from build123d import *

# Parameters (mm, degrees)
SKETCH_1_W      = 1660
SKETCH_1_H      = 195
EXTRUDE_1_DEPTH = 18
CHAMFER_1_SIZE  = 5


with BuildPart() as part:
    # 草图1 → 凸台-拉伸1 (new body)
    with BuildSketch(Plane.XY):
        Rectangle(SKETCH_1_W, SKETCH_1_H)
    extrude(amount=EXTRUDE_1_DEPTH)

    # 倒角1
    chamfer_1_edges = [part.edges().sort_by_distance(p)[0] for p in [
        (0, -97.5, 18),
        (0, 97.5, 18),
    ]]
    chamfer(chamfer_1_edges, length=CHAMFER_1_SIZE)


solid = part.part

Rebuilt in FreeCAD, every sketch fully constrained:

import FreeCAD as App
import Part
import Sketcher
Q = App.Units.Quantity


def edges_at(feature, points):
    """Names of the edges that pass closest to the given points."""
    edges = feature.Shape.Edges
    near = lambda p: min(range(len(edges)), key=lambda i: edges[i].distToShape(Part.Vertex(*p))[0])
    return sorted({f"Edge{near(p) + 1}" for p in points})

doc = App.newDocument("Part")
body = doc.addObject("PartDesign::Body", "Body")

sketch1 = doc.addObject("Sketcher::SketchObject", "Sketch")
body.addObject(sketch1)
sketch1.AttachmentSupport = (doc.XY_Plane, [""])
sketch1.MapMode = "FlatFace"
sketch1.addGeometry(Part.LineSegment(App.Vector(-830, 97.5, 0), App.Vector(-830, -97.5, 0)), False)
sketch1.addGeometry(Part.LineSegment(App.Vector(-830, -97.5, 0), App.Vector(830, -97.5, 0)), False)
sketch1.addGeometry(Part.LineSegment(App.Vector(830, -97.5, 0), App.Vector(830, 97.5, 0)), False)
sketch1.addGeometry(Part.LineSegment(App.Vector(830, 97.5, 0), App.Vector(-830, 97.5, 0)), False)
sketch1.addConstraint(Sketcher.Constraint("Coincident", 0, 2, 1, 1))
sketch1.addConstraint(Sketcher.Constraint("Coincident", 1, 2, 2, 1))
sketch1.addConstraint(Sketcher.Constraint("Coincident", 2, 2, 3, 1))
sketch1.addConstraint(Sketcher.Constraint("Coincident", 3, 2, 0, 1))
sketch1.addConstraint(Sketcher.Constraint("Vertical", 0))
sketch1.addConstraint(Sketcher.Constraint("Horizontal", 1))
sketch1.addConstraint(Sketcher.Constraint("Vertical", 2))
sketch1.addConstraint(Sketcher.Constraint("Horizontal", 3))
sketch1.addConstraint(Sketcher.Constraint("Symmetric", 0, 2, 2, 2, -1, 1))
sketch1.addConstraint(Sketcher.Constraint("DistanceX", 1, 1, 1, 2, Q("1660 mm")))
sketch1.addConstraint(Sketcher.Constraint("DistanceY", 0, 2, 0, 1, Q("195 mm")))
pad1 = doc.addObject("PartDesign::Pad", "Pad")
body.addObject(pad1)
pad1.Profile = sketch1
pad1.Length = 18
doc.recompute()

chamfer = doc.addObject("PartDesign::Chamfer", "Chamfer")
body.addObject(chamfer)
chamfer.Base = (pad1, edges_at(pad1, [(0, -97.5, 18), (0, 97.5, 18)]))
chamfer.Size = 5

doc.recompute()
